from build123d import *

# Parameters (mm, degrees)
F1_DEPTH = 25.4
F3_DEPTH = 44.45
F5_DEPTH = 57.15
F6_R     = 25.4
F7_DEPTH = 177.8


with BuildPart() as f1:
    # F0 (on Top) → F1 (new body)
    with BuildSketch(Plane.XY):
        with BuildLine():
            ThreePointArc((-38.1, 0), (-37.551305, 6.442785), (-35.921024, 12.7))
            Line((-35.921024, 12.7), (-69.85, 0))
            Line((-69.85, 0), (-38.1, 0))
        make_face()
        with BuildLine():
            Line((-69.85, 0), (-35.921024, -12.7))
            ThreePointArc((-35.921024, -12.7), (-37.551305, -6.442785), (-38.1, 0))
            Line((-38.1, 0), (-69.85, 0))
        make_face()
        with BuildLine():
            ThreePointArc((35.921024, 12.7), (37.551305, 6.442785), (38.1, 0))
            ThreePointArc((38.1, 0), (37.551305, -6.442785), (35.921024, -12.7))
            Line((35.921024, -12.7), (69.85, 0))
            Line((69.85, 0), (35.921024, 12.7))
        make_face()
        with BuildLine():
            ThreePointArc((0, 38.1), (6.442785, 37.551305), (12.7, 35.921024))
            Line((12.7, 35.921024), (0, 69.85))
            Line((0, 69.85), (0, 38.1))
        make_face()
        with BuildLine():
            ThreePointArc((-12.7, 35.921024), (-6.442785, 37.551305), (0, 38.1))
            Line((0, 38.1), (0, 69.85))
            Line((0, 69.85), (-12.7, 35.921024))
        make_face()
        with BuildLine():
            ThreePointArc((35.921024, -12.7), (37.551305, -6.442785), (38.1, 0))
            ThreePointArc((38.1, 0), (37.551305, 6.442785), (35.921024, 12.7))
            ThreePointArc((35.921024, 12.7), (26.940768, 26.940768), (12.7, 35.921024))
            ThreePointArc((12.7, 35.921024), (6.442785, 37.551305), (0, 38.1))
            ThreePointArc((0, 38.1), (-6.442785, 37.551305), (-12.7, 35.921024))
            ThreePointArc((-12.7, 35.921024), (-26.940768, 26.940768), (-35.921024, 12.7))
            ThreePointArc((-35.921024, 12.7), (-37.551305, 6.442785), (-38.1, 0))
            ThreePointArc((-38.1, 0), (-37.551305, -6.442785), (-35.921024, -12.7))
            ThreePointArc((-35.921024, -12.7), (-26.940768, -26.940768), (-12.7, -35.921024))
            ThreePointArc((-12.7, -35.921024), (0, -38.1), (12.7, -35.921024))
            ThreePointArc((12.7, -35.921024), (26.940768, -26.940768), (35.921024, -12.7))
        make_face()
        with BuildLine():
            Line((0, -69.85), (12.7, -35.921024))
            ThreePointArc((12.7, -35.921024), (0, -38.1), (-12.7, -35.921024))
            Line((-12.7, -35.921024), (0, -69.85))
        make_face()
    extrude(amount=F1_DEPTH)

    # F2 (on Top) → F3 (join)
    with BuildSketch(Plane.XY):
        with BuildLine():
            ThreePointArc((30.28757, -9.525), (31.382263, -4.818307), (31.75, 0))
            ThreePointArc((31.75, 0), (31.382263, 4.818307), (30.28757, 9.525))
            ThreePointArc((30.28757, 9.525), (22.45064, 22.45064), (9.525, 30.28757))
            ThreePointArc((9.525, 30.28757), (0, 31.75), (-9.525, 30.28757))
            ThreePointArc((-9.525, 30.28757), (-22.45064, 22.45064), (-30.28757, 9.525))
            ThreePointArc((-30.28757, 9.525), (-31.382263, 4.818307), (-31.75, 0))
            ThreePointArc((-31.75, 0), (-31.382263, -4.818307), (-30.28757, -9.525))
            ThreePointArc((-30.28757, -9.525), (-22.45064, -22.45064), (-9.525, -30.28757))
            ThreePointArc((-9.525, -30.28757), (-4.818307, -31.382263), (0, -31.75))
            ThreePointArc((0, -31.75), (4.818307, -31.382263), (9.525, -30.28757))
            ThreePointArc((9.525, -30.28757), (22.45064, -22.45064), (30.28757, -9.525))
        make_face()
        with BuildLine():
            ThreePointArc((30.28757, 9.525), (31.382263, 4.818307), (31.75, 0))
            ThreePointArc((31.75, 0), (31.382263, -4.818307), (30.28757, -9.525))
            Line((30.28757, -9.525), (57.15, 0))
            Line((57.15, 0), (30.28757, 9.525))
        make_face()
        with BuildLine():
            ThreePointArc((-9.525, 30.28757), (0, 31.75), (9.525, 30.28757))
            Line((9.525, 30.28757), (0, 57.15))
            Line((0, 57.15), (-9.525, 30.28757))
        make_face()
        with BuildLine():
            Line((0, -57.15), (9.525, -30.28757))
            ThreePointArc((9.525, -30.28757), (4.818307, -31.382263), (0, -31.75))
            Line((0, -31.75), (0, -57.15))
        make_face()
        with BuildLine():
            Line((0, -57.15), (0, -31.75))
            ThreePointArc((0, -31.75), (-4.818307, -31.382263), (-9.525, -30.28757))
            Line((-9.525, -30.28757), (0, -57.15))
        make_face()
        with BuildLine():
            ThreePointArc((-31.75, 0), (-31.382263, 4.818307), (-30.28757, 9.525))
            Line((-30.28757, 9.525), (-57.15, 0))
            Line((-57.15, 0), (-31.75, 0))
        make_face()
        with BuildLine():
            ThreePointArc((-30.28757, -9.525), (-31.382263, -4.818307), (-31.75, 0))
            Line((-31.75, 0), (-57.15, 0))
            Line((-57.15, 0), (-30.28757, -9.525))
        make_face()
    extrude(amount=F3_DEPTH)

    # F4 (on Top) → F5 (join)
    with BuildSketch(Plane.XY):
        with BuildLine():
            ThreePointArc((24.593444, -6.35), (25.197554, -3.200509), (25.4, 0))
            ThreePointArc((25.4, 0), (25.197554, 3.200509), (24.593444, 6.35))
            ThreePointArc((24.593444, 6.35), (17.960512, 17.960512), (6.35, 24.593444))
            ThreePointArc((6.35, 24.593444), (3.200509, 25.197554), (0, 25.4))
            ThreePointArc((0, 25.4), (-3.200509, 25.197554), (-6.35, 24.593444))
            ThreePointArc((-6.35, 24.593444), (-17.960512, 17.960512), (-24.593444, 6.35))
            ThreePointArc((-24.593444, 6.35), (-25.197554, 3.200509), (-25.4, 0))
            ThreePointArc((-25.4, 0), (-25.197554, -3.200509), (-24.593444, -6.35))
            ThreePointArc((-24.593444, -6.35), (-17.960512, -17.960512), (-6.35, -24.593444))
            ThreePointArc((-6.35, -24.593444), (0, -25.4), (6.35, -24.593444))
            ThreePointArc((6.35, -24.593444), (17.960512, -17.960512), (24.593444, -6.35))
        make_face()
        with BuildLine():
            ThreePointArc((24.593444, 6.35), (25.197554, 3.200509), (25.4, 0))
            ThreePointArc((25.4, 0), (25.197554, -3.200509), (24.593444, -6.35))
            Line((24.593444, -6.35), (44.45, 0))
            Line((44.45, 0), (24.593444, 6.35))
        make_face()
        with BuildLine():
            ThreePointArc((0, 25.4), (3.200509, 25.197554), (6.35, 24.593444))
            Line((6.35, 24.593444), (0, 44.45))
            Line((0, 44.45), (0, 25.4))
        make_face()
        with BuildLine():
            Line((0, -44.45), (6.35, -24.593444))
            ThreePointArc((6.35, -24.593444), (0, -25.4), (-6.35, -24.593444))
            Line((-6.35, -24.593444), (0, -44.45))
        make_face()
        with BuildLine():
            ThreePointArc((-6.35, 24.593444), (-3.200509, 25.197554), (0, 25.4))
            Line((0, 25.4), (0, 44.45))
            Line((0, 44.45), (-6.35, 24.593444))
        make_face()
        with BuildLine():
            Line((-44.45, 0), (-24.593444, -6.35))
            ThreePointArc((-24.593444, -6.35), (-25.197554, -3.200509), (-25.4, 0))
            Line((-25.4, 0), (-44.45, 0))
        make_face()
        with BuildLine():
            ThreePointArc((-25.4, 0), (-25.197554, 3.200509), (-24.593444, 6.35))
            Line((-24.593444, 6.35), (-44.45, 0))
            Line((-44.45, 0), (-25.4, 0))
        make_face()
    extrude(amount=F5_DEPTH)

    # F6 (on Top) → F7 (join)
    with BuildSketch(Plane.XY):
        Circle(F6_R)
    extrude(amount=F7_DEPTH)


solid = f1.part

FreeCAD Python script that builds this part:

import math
import FreeCAD as App
import Part
import Sketcher

V = App.Vector
Q = App.Units.Quantity

doc = App.newDocument("Part")
body = doc.addObject("PartDesign::Body", "Body")

# Sketch on XY plane
sketch1 = body.newObject("Sketcher::SketchObject", "Sketch")
sketch1.AttachmentSupport = (doc.getObject("XY_Plane"), [""])
sketch1.MapMode = "FlatFace"
sketch1.addGeometry([
    Part.LineSegment(V(-36, 13, 0), V(-70, 0, 0)),  # 0
    Part.LineSegment(V(-70, 0, 0), V(-36, -13, 0)),  # 1
    Part.ArcOfCircle(Part.Circle(V(0, 0, 0), V(0, 0, 1), 38), math.radians(-161), math.radians(-109)),  # 2
    Part.LineSegment(V(-13, -36, 0), V(0, -70, 0)),  # 3
    Part.LineSegment(V(0, -70, 0), V(13, -36, 0)),  # 4
    Part.ArcOfCircle(Part.Circle(V(0, 0, 0), V(0, 0, 1), 38), math.radians(-71), math.radians(-19)),  # 5
    Part.LineSegment(V(36, -13, 0), V(70, 0, 0)),  # 6
    Part.LineSegment(V(70, 0, 0), V(36, 13, 0)),  # 7
    Part.ArcOfCircle(Part.Circle(V(0, 0, 0), V(0, 0, 1), 38), math.radians(19), math.radians(71)),  # 8
    Part.LineSegment(V(13, 36, 0), V(0, 70, 0)),  # 9
    Part.LineSegment(V(0, 70, 0), V(-13, 36, 0)),  # 10
    Part.ArcOfCircle(Part.Circle(V(0, 0, 0), V(0, 0, 1), 38), math.radians(109), math.radians(161)),  # 11
], False)
sketch1.addConstraint([
    Sketcher.Constraint("Coincident", 0, 2, 1, 1),
    Sketcher.Constraint("Coincident", 1, 2, 2, 1),
    Sketcher.Constraint("Coincident", 2, 2, 3, 1),
    Sketcher.Constraint("Coincident", 3, 2, 4, 1),
    Sketcher.Constraint("Coincident", 4, 2, 5, 1),
    Sketcher.Constraint("Coincident", 5, 2, 6, 1),
    Sketcher.Constraint("Coincident", 6, 2, 7, 1),
    Sketcher.Constraint("Coincident", 7, 2, 8, 1),
    Sketcher.Constraint("Coincident", 8, 2, 9, 1),
    Sketcher.Constraint("Coincident", 9, 2, 10, 1),
    Sketcher.Constraint("Coincident", 10, 2, 11, 1),
    Sketcher.Constraint("Coincident", 11, 2, 0, 1),
    Sketcher.Constraint("Coincident", 2, 3, -1, 1),
    Sketcher.Constraint("Coincident", 5, 3, -1, 1),
    Sketcher.Constraint("Coincident", 8, 3, -1, 1),
    Sketcher.Constraint("Coincident", 11, 3, -1, 1),
    Sketcher.Constraint("Equal", 2, 5),
    Sketcher.Constraint("Equal", 5, 8),
    Sketcher.Constraint("Equal", 8, 11),
    Sketcher.Constraint("Symmetric", 0, 2, 6, 2, -1, 1),
    Sketcher.Constraint("Symmetric", 3, 2, 9, 2, -1, 1),
    Sketcher.Constraint("PointOnObject", 0, 2, -1),
    Sketcher.Constraint("PointOnObject", 3, 2, -2),
    Sketcher.Constraint("Perpendicular", 0, 3),
    Sketcher.Constraint("Perpendicular", 1, 4),
    Sketcher.Constraint("Perpendicular", 3, 6),
    Sketcher.Constraint("Perpendicular", 4, 7),
    Sketcher.Constraint("Perpendicular", 6, 9),
    Sketcher.Constraint("Perpendicular", 7, 10),
    Sketcher.Constraint("Horizontal", 2, 2, 4, 2),
    Sketcher.Constraint("Equal", 1, 3),
    Sketcher.Constraint("Radius", 2, Q("1.5 in")),
    Sketcher.Constraint("DistanceX", 2, 2, 4, 2, Q("1 in")),
    Sketcher.Constraint("DistanceX", 0, 2, -1, 1, Q("2.75 in")),
])
pad1 = body.newObject("PartDesign::Pad", "Pad")
pad1.Profile = sketch1
pad1.Length = Q("1 in")

# Sketch on XY plane
sketch2 = body.newObject("Sketcher::SketchObject", "Sketch001")
sketch2.AttachmentSupport = (doc.getObject("XY_Plane"), [""])
sketch2.MapMode = "FlatFace"
sketch2.addGeometry([
    Part.ArcOfCircle(Part.Circle(V(0, 0, 0), V(0, 0, 1), 32), math.radians(17), math.radians(73)),  # 0
    Part.LineSegment(V(10, 30, 0), V(0, 57, 0)),  # 1
    Part.LineSegment(V(0, 57, 0), V(-10, 30, 0)),  # 2
    Part.ArcOfCircle(Part.Circle(V(0, 0, 0), V(0, 0, 1), 32), math.radians(107), math.radians(163)),  # 3
    Part.LineSegment(V(-30, 10, 0), V(-57, 0, 0)),  # 4
    Part.LineSegment(V(-57, 0, 0), V(-30, -10, 0)),  # 5
    Part.ArcOfCircle(Part.Circle(V(0, 0, 0), V(0, 0, 1), 32), math.radians(-163), math.radians(-107)),  # 6
    Part.LineSegment(V(-10, -30, 0), V(0, -57, 0)),  # 7
    Part.LineSegment(V(0, -57, 0), V(10, -30, 0)),  # 8
    Part.ArcOfCircle(Part.Circle(V(0, 0, 0), V(0, 0, 1), 32), math.radians(-73), math.radians(-17)),  # 9
    Part.LineSegment(V(30, -10, 0), V(57, 0, 0)),  # 10
    Part.LineSegment(V(57, 0, 0), V(30, 10, 0)),  # 11
], False)
sketch2.addConstraint([
    Sketcher.Constraint("Coincident", 0, 2, 1, 1),
    Sketcher.Constraint("Coincident", 1, 2, 2, 1),
    Sketcher.Constraint("Coincident", 2, 2, 3, 1),
    Sketcher.Constraint("Coincident", 3, 2, 4, 1),
    Sketcher.Constraint("Coincident", 4, 2, 5, 1),
    Sketcher.Constraint("Coincident", 5, 2, 6, 1),
    Sketcher.Constraint("Coincident", 6, 2, 7, 1),
    Sketcher.Constraint("Coincident", 7, 2, 8, 1),
    Sketcher.Constraint("Coincident", 8, 2, 9, 1),
    Sketcher.Constraint("Coincident", 9, 2, 10, 1),
    Sketcher.Constraint("Coincident", 10, 2, 11, 1),
    Sketcher.Constraint("Coincident", 11, 2, 0, 1),
    Sketcher.Constraint("Coincident", 0, 3, -1, 1),
    Sketcher.Constraint("Coincident", 3, 3, -1, 1),
    Sketcher.Constraint("Coincident", 6, 3, -1, 1),
    Sketcher.Constraint("Coincident", 9, 3, -1, 1),
    Sketcher.Constraint("Equal", 0, 3),
    Sketcher.Constraint("Equal", 3, 6),
    Sketcher.Constraint("Equal", 6, 9),
    Sketcher.Constraint("Symmetric", 1, 2, 7, 2, -1, 1),
    Sketcher.Constraint("Symmetric", 4, 2, 10, 2, -1, 1),
    Sketcher.Constraint("PointOnObject", 1, 2, -2),
    Sketcher.Constraint("PointOnObject", 4, 2, -1),
    Sketcher.Constraint("Perpendicular", 1, 4),
    Sketcher.Constraint("Perpendicular", 2, 5),
    Sketcher.Constraint("Perpendicular", 4, 7),
    Sketcher.Constraint("Perpendicular", 5, 8),
    Sketcher.Constraint("Perpendicular", 7, 10),
    Sketcher.Constraint("Perpendicular", 8, 11),
    Sketcher.Constraint("Horizontal", 0, 2, 2, 2),
    Sketcher.Constraint("Equal", 2, 4),
    Sketcher.Constraint("DistanceY", -1, 1, 1, 2, Q("2.25 in")),
    Sketcher.Constraint("DistanceX", 2, 2, 0, 2, Q("0.75 in")),
    Sketcher.Constraint("Radius", 0, Q("31.750006 mm")),
])
pad2 = body.newObject("PartDesign::Pad", "Pad001")
pad2.Profile = sketch2
pad2.Length = Q("1.75 in")

# Sketch on XY plane
sketch3 = body.newObject("Sketcher::SketchObject", "Sketch002")
sketch3.AttachmentSupport = (doc.getObject("XY_Plane"), [""])
sketch3.MapMode = "FlatFace"
sketch3.addGeometry([
    Part.ArcOfCircle(Part.Circle(V(0, 0, 0), V(0, 0, 1), 25), math.radians(14), math.radians(76)),  # 0
    Part.LineSegment(V(6, 25, 0), V(0, 44, 0)),  # 1
    Part.LineSegment(V(0, 44, 0), V(-6, 25, 0)),  # 2
    Part.ArcOfCircle(Part.Circle(V(0, 0, 0), V(0, 0, 1), 25), math.radians(104), math.radians(166)),  # 3
    Part.LineSegment(V(-25, 6, 0), V(-44, 0, 0)),  # 4
    Part.LineSegment(V(-44, 0, 0), V(-25, -6, 0)),  # 5
    Part.ArcOfCircle(Part.Circle(V(0, 0, 0), V(0, 0, 1), 25), math.radians(-166), math.radians(-104)),  # 6
    Part.LineSegment(V(-6, -25, 0), V(0, -44, 0)),  # 7
    Part.LineSegment(V(0, -44, 0), V(6, -25, 0)),  # 8
    Part.ArcOfCircle(Part.Circle(V(0, 0, 0), V(0, 0, 1), 25), math.radians(-76), math.radians(-14)),  # 9
    Part.LineSegment(V(25, -6, 0), V(44, 0, 0)),  # 10
    Part.LineSegment(V(44, 0, 0), V(25, 6, 0)),  # 11
], False)
sketch3.addConstraint([
    Sketcher.Constraint("Coincident", 0, 2, 1, 1),
    Sketcher.Constraint("Coincident", 1, 2, 2, 1),
    Sketcher.Constraint("Coincident", 2, 2, 3, 1),
    Sketcher.Constraint("Coincident", 3, 2, 4, 1),
    Sketcher.Constraint("Coincident", 4, 2, 5, 1),
    Sketcher.Constraint("Coincident", 5, 2, 6, 1),
    Sketcher.Constraint("Coincident", 6, 2, 7, 1),
    Sketcher.Constraint("Coincident", 7, 2, 8, 1),
    Sketcher.Constraint("Coincident", 8, 2, 9, 1),
    Sketcher.Constraint("Coincident", 9, 2, 10, 1),
    Sketcher.Constraint("Coincident", 10, 2, 11, 1),
    Sketcher.Constraint("Coincident", 11, 2, 0, 1),
    Sketcher.Constraint("Coincident", 0, 3, -1, 1),
    Sketcher.Constraint("Coincident", 3, 3, -1, 1),
    Sketcher.Constraint("Coincident", 6, 3, -1, 1),
    Sketcher.Constraint("Coincident", 9, 3, -1, 1),
    Sketcher.Constraint("Equal", 0, 3),
    Sketcher.Constraint("Equal", 3, 6),
    Sketcher.Constraint("Equal", 6, 9),
    Sketcher.Constraint("Symmetric", 1, 2, 7, 2, -1, 1),
    Sketcher.Constraint("Symmetric", 4, 2, 10, 2, -1, 1),
    Sketcher.Constraint("PointOnObject", 1, 2, -2),
    Sketcher.Constraint("PointOnObject", 4, 2, -1),
    Sketcher.Constraint("Perpendicular", 1, 4),
    Sketcher.Constraint("Perpendicular", 2, 5),
    Sketcher.Constraint("Perpendicular", 4, 7),
    Sketcher.Constraint("Perpendicular", 5, 8),
    Sketcher.Constraint("Perpendicular", 7, 10),
    Sketcher.Constraint("Perpendicular", 8, 11),
    Sketcher.Constraint("Horizontal", 0, 2, 2, 2),
    Sketcher.Constraint("Equal", 2, 4),
    Sketcher.Constraint("Radius", 0, Q("1 in")),
    Sketcher.Constraint("DistanceX", 2, 2, 0, 2, Q("0.5 in")),
    Sketcher.Constraint("DistanceY", -1, 1, 1, 2, Q("1.75 in")),
])
pad3 = body.newObject("PartDesign::Pad", "Pad002")
pad3.Profile = sketch3
pad3.Length = Q("2.25 in")

# Sketch on XY plane
sketch4 = body.newObject("Sketcher::SketchObject", "Sketch003")
sketch4.AttachmentSupport = (doc.getObject("XY_Plane"), [""])
sketch4.MapMode = "FlatFace"
sketch4.addGeometry(Part.Circle(V(0, 0, 0), V(0, 0, 1), 25), False)
sketch4.addConstraint([
    Sketcher.Constraint("Coincident", 0, 3, -1, 1),
    Sketcher.Constraint("Diameter", 0, Q("2 in")),
])
pad4 = body.newObject("PartDesign::Pad", "Pad003")
pad4.Profile = sketch4
pad4.Length = Q("7 in")

doc.recompute()
